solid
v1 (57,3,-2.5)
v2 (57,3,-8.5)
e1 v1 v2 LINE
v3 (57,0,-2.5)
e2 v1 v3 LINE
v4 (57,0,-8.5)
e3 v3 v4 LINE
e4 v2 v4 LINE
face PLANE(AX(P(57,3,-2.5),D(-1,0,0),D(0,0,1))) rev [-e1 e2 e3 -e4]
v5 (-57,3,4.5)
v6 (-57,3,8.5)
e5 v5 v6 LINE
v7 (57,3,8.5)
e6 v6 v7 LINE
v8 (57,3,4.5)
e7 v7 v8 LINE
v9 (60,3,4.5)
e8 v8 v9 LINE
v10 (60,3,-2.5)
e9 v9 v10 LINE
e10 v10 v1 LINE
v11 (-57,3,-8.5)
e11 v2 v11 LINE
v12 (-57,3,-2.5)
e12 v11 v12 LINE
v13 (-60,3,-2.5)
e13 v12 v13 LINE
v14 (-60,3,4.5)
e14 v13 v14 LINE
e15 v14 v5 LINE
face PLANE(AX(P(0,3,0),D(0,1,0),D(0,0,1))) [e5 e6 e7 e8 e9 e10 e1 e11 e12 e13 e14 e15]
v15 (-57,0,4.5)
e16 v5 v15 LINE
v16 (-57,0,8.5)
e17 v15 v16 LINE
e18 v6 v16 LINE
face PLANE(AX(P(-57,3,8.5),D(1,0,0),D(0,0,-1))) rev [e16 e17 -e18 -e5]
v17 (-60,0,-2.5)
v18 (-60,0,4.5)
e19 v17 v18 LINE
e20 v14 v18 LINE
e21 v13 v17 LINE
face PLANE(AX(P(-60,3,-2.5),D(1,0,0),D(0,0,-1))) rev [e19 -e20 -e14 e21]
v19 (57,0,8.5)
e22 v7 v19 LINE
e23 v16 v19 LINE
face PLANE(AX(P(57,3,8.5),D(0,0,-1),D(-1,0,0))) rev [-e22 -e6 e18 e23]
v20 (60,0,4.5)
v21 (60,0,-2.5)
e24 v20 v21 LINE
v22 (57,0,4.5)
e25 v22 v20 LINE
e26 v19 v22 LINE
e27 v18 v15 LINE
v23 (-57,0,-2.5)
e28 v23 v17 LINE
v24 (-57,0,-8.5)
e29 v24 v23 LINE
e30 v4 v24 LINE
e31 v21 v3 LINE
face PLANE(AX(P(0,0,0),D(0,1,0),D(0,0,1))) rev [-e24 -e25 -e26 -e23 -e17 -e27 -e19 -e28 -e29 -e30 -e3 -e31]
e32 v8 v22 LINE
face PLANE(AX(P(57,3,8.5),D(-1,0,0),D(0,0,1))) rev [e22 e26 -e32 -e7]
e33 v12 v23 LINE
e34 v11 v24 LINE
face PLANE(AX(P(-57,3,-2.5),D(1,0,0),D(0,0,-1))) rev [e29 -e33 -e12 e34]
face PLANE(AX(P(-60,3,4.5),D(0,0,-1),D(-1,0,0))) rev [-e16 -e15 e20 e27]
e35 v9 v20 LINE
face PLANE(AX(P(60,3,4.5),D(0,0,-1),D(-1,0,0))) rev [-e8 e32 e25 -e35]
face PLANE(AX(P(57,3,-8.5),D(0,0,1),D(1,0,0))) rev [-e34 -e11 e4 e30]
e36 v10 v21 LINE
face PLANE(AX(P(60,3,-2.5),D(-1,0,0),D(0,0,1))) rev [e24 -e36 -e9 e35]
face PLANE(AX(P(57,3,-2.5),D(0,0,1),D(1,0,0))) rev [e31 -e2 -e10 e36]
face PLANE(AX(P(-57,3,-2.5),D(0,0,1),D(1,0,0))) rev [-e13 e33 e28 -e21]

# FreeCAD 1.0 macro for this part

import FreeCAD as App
import Part
import Sketcher

V = App.Vector


def add_polygon(sketch, points):
    """Adds a closed chain of lines whose ends are joined by coincident constraints."""
    first, n = sketch.GeometryCount, len(points)
    for a, b in zip(points, points[1:] + points[:1]):
        sketch.addGeometry(Part.LineSegment(App.Vector(*a, 0), App.Vector(*b, 0)), False)
    for i in range(n):
        sketch.addConstraint(Sketcher.Constraint("Coincident", first + i, 2, first + (i + 1) % n, 1))

doc = App.newDocument("Part")
body = doc.addObject("PartDesign::Body", "Body")

sketch1 = doc.addObject("Sketcher::SketchObject", "Sketch")
body.addObject(sketch1)
sketch1.AttachmentSupport = (doc.XZ_Plane, [""])
sketch1.MapMode = "FlatFace"
add_polygon(sketch1, [(-57, -2.5), (-60, -2.5), (-60, 4.5), (-57, 4.5), (-57, 8.5), (57, 8.5), (57, 4.5), (60, 4.5), (60, -2.5), (57, -2.5), (57, -8.5), (-57, -8.5)])
sketch1.addConstraint([
    Sketcher.Constraint("Horizontal", 0),
    Sketcher.Constraint("Vertical", 1),
    Sketcher.Constraint("Horizontal", 2),
    Sketcher.Constraint("Vertical", 3),
    Sketcher.Constraint("Horizontal", 4),
    Sketcher.Constraint("Vertical", 5),
    Sketcher.Constraint("Horizontal", 6),
    Sketcher.Constraint("Vertical", 7),
    Sketcher.Constraint("Horizontal", 8),
    Sketcher.Constraint("Vertical", 9),
    Sketcher.Constraint("Horizontal", 10),
    Sketcher.Constraint("Vertical", 11),
    Sketcher.Constraint("Symmetric", 3, 2, 9, 2, -1, 1),
    Sketcher.Constraint("Symmetric", 2, 2, 5, 2, -2),
    Sketcher.Constraint("Symmetric", 0, 2, 7, 2, -2),
    Sketcher.Constraint("Vertical", 3, 2, 10, 2),
    Sketcher.Constraint("DistanceX", 0, 2, 0, 1, 3.0),
    Sketcher.Constraint("DistanceX", 4, 1, 4, 2, 114.0),
    Sketcher.Constraint("DistanceY", 1, 1, 1, 2, 7.0),
    Sketcher.Constraint("DistanceY", 3, 1, 3, 2, 4.0),
    Sketcher.Constraint("DistanceY", 9, 2, 9, 1, 6.0),
])
pad1 = doc.addObject("PartDesign::Pad", "Pad")
body.addObject(pad1)
pad1.Profile = sketch1
pad1.Length = 3
pad1.Reversed = True

doc.recompute()
